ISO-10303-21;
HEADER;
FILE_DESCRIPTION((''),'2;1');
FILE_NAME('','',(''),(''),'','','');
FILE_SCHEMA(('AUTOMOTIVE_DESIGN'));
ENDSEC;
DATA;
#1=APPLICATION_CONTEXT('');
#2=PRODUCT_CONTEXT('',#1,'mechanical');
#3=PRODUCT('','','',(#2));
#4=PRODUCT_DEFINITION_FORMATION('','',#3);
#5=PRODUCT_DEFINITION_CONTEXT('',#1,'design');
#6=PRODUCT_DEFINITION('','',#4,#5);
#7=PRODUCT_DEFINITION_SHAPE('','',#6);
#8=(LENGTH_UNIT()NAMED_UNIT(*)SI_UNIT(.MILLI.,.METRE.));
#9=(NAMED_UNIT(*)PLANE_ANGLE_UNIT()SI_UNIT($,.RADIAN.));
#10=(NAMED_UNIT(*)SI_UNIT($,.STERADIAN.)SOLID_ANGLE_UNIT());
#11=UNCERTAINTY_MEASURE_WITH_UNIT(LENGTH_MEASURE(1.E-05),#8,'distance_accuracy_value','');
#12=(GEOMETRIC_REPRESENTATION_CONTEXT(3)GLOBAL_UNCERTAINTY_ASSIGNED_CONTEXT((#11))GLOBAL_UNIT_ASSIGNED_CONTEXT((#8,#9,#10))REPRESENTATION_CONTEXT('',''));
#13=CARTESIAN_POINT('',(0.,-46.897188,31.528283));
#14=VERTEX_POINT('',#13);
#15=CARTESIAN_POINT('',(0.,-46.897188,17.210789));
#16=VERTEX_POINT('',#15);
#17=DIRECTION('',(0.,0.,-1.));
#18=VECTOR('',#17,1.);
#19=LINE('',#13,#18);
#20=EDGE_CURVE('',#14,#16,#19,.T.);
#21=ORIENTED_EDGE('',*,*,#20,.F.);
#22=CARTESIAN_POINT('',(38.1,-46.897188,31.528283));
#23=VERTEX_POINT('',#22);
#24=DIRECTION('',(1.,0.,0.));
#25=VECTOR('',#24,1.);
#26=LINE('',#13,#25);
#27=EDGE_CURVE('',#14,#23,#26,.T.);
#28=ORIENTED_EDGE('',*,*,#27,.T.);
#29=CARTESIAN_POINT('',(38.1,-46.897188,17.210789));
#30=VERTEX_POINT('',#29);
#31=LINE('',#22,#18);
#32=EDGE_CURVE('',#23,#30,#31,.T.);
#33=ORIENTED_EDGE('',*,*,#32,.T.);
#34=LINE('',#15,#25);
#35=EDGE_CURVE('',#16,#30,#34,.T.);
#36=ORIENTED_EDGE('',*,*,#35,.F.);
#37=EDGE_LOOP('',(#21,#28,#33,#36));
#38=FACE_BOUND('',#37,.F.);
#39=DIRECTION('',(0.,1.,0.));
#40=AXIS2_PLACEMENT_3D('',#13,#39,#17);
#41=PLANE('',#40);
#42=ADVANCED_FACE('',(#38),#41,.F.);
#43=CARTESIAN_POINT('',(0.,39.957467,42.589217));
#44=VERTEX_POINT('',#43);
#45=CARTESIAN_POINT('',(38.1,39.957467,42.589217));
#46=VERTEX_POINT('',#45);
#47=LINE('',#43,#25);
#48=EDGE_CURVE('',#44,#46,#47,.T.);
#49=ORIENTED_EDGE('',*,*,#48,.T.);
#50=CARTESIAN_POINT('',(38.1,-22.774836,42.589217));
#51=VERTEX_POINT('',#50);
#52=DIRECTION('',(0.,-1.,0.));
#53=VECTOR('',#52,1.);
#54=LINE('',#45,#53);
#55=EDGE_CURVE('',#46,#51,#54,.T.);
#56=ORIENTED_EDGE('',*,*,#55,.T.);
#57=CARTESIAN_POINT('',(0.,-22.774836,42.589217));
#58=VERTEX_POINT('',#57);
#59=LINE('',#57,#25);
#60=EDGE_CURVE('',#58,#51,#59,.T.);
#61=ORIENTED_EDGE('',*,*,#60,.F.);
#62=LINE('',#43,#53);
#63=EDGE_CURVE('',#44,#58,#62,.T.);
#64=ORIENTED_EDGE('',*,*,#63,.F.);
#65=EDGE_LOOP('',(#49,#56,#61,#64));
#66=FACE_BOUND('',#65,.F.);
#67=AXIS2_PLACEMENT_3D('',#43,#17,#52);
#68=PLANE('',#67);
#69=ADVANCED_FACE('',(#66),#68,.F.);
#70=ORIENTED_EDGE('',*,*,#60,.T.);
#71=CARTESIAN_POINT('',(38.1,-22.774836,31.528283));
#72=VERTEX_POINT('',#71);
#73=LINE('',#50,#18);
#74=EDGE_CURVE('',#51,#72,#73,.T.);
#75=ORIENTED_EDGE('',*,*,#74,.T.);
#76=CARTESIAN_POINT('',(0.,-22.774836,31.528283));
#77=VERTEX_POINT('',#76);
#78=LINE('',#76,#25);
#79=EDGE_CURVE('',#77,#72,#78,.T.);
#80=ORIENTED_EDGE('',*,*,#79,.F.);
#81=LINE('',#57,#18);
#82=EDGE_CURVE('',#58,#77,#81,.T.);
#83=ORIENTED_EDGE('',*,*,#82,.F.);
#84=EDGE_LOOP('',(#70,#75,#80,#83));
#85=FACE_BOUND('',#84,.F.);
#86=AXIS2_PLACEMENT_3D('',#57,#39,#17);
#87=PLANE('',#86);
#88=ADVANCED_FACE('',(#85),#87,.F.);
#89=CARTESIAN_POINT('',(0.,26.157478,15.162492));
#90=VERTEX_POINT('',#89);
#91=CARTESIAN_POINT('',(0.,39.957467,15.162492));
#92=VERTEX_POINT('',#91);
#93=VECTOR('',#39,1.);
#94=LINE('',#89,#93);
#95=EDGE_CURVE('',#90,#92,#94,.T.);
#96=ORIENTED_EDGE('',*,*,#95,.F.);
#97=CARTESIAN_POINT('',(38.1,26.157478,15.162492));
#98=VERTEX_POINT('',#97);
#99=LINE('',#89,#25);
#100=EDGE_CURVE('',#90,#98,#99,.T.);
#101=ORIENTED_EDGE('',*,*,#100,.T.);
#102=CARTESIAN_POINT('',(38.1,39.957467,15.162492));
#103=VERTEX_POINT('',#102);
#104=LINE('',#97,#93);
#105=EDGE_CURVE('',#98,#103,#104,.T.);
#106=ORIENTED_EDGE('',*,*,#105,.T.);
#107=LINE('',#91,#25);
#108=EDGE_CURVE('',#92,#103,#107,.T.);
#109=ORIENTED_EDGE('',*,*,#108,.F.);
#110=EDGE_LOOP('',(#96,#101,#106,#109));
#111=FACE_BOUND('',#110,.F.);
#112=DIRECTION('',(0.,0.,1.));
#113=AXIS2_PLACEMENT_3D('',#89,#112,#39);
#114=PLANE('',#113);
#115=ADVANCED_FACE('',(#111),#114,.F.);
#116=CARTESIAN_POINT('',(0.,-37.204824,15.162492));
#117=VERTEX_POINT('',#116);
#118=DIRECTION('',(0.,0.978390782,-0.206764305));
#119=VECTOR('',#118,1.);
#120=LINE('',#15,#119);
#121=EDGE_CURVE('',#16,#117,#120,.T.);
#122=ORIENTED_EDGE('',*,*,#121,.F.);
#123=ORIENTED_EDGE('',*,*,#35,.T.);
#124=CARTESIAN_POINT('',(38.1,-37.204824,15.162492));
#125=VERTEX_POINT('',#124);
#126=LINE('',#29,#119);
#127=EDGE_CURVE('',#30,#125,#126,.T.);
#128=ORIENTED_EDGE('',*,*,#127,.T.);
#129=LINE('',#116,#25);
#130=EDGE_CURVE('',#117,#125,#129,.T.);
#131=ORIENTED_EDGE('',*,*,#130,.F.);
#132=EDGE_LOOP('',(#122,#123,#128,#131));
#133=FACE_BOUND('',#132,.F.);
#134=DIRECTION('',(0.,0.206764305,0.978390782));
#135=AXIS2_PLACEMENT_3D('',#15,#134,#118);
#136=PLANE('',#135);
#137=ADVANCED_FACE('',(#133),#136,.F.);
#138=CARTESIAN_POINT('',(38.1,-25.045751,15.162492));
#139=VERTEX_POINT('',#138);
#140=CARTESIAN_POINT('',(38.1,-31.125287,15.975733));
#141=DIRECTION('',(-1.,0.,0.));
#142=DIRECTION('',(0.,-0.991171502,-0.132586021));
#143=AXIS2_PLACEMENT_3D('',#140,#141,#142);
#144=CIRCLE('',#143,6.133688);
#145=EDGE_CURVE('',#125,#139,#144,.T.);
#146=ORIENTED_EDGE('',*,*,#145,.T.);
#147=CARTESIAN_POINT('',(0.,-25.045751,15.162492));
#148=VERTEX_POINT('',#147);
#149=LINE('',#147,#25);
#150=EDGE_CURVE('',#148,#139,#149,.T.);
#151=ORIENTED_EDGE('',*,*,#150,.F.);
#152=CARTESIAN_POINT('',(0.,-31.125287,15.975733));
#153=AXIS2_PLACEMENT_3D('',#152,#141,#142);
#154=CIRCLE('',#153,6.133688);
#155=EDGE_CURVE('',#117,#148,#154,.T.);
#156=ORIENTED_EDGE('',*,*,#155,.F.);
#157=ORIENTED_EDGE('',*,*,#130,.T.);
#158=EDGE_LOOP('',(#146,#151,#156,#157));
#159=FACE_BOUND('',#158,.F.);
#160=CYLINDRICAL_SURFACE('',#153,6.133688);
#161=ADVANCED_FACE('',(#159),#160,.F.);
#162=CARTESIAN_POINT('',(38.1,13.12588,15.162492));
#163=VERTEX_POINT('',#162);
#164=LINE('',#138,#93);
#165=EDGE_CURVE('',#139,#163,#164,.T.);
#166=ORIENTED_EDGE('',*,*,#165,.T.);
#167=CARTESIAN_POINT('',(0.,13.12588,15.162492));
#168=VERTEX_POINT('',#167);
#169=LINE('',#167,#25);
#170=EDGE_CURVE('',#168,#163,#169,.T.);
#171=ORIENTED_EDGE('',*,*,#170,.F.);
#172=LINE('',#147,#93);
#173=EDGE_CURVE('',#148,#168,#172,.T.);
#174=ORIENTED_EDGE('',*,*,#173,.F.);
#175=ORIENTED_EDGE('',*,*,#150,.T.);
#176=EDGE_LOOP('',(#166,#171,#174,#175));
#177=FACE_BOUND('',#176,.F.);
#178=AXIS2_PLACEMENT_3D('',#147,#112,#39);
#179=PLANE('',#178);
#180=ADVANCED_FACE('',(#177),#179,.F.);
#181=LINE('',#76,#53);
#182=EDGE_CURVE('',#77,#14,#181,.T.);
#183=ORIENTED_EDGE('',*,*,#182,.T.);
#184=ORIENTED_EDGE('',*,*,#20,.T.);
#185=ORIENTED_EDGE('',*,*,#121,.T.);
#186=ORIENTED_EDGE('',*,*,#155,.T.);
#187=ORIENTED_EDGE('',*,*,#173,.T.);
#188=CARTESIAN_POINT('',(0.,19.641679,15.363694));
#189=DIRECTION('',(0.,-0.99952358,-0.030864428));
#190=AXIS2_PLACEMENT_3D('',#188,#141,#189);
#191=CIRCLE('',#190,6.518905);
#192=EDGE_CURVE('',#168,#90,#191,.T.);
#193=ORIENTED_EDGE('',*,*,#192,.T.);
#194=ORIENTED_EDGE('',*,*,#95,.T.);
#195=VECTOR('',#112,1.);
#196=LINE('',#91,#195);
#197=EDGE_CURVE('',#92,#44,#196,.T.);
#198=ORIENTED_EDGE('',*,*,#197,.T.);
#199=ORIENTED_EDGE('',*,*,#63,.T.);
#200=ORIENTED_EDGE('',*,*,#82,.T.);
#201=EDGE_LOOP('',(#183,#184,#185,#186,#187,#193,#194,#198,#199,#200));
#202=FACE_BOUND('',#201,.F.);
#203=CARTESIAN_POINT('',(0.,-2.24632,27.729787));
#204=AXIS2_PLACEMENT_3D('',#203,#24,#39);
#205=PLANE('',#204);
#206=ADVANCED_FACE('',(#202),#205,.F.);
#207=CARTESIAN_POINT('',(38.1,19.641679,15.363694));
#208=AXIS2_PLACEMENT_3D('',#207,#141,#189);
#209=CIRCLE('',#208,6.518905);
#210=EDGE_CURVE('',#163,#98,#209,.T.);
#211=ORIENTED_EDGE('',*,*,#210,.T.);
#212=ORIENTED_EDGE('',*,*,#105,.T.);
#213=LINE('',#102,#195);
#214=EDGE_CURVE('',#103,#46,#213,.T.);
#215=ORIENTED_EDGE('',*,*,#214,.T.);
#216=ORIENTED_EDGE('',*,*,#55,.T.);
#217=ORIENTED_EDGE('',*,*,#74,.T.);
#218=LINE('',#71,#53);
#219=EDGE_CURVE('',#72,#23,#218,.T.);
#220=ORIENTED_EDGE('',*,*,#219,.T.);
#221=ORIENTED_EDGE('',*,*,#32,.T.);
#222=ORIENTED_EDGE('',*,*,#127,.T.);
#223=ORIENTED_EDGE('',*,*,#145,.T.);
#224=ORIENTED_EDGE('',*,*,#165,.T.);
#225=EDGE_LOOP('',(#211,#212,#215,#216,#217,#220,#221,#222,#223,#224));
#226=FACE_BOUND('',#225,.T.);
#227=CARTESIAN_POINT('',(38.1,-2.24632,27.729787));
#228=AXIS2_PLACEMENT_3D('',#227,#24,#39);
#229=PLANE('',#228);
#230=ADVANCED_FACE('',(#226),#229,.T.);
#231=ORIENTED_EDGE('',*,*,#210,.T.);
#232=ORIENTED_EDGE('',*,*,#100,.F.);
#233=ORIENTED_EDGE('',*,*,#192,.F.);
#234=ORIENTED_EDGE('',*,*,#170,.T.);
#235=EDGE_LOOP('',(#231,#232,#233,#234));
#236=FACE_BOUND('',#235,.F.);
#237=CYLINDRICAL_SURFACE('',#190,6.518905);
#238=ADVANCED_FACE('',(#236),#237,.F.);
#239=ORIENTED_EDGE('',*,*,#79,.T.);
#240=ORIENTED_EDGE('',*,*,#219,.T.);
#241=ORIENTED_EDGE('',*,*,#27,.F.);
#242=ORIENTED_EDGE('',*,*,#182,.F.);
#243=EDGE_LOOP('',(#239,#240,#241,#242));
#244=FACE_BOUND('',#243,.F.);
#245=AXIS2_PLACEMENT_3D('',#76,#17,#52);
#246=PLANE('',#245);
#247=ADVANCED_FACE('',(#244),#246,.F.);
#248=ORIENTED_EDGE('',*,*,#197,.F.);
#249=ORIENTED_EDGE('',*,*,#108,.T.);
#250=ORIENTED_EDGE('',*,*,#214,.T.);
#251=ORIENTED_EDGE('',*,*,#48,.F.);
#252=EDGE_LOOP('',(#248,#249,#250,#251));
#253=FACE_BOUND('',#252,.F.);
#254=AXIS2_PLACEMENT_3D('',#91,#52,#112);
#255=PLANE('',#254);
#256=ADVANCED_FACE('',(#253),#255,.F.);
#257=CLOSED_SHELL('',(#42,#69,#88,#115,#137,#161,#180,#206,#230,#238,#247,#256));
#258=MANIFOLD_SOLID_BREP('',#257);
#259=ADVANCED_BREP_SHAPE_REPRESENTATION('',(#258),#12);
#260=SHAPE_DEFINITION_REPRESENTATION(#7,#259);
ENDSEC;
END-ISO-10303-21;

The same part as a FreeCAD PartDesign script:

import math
import FreeCAD as App
import Part
import Sketcher

V = App.Vector
Q = App.Units.Quantity

doc = App.newDocument("Part")
body = doc.addObject("PartDesign::Body", "Body")

sketch1 = body.newObject("Sketcher::SketchObject", "Sketch")
sketch1.AttachmentSupport = (doc.getObject("YZ_Plane"), [""])
sketch1.MapMode = "FlatFace"
sketch1.addGeometry([
    Part.LineSegment(V(-47, 32, 0), V(-47, 17, 0)),
    Part.LineSegment(V(-47, 17, 0), V(-37, 15, 0)),
    Part.ArcOfCircle(Part.Circle(V(-31, 16, 0), V(0, 0, 1), 6), math.radians(-8), math.radians(188)),
    Part.LineSegment(V(-25, 15, 0), V(13, 15, 0)),
    Part.ArcOfCircle(Part.Circle(V(20, 15, 0), V(0, 0, 1), 7), math.radians(-2), math.radians(182)),
    Part.LineSegment(V(26, 15, 0), V(40, 15, 0)),
    Part.LineSegment(V(40, 15, 0), V(40, 43, 0)),
    Part.LineSegment(V(40, 43, 0), V(-23, 43, 0)),
    Part.LineSegment(V(-23, 43, 0), V(-23, 32, 0)),
    Part.LineSegment(V(-23, 32, 0), V(-47, 32, 0)),
], False)
sketch1.addConstraint([
    Sketcher.Constraint("Coincident", 0, 2, 1, 1),
    Sketcher.Constraint("Coincident", 1, 2, 2, 2),
    Sketcher.Constraint("Coincident", 2, 1, 3, 1),
    Sketcher.Constraint("Coincident", 3, 2, 4, 2),
    Sketcher.Constraint("Coincident", 4, 1, 5, 1),
    Sketcher.Constraint("Coincident", 5, 2, 6, 1),
    Sketcher.Constraint("Coincident", 6, 2, 7, 1),
    Sketcher.Constraint("Coincident", 7, 2, 8, 1),
    Sketcher.Constraint("Coincident", 8, 2, 9, 1),
    Sketcher.Constraint("Coincident", 9, 2, 0, 1),
    Sketcher.Constraint("Vertical", 0),
    Sketcher.Constraint("Horizontal", 3),
    Sketcher.Constraint("Horizontal", 5),
    Sketcher.Constraint("Vertical", 6),
    Sketcher.Constraint("Horizontal", 7),
    Sketcher.Constraint("Vertical", 8),
    Sketcher.Constraint("Horizontal", 9),
    Sketcher.Constraint("Horizontal", 1, 2, 2, 1),
    Sketcher.Constraint("Horizontal", 3, 2, 4, 1),
    Sketcher.Constraint("Radius", 2, 6.133688),
    Sketcher.Constraint("Radius", 4, 6.518905),
    Sketcher.Constraint("DistanceX", 3, 1, 3, 2, 38.171631),
    Sketcher.Constraint("DistanceX", 5, 1, 5, 2, 13.799989),
    Sketcher.Constraint("DistanceX", 9, 2, 9, 1, 24.122352),
    Sketcher.Constraint("DistanceX", 0, 2, 2, 3, 15.771901),
    Sketcher.Constraint("DistanceX", 3, 2, 4, 3, 6.515799),
    Sketcher.Constraint("DistanceX", 1, 2, 4, 1, 63.362302),
    Sketcher.Constraint("DistanceY", 0, 2, 0, 1, 14.317494),
    Sketcher.Constraint("DistanceY", 6, 1, 6, 2, 27.426725),
    Sketcher.Constraint("DistanceY", 8, 2, 8, 1, 11.060934),
    Sketcher.Constraint("DistanceX", -1, 1, 4, 3, 19.641679),
    Sketcher.Constraint("DistanceY", -1, 1, 0, 2, 17.210789),
])
pad1 = body.newObject("PartDesign::Pad", "Pad")
pad1.Profile = sketch1
pad1.Length = Q("1.5 in")

doc.recompute()
